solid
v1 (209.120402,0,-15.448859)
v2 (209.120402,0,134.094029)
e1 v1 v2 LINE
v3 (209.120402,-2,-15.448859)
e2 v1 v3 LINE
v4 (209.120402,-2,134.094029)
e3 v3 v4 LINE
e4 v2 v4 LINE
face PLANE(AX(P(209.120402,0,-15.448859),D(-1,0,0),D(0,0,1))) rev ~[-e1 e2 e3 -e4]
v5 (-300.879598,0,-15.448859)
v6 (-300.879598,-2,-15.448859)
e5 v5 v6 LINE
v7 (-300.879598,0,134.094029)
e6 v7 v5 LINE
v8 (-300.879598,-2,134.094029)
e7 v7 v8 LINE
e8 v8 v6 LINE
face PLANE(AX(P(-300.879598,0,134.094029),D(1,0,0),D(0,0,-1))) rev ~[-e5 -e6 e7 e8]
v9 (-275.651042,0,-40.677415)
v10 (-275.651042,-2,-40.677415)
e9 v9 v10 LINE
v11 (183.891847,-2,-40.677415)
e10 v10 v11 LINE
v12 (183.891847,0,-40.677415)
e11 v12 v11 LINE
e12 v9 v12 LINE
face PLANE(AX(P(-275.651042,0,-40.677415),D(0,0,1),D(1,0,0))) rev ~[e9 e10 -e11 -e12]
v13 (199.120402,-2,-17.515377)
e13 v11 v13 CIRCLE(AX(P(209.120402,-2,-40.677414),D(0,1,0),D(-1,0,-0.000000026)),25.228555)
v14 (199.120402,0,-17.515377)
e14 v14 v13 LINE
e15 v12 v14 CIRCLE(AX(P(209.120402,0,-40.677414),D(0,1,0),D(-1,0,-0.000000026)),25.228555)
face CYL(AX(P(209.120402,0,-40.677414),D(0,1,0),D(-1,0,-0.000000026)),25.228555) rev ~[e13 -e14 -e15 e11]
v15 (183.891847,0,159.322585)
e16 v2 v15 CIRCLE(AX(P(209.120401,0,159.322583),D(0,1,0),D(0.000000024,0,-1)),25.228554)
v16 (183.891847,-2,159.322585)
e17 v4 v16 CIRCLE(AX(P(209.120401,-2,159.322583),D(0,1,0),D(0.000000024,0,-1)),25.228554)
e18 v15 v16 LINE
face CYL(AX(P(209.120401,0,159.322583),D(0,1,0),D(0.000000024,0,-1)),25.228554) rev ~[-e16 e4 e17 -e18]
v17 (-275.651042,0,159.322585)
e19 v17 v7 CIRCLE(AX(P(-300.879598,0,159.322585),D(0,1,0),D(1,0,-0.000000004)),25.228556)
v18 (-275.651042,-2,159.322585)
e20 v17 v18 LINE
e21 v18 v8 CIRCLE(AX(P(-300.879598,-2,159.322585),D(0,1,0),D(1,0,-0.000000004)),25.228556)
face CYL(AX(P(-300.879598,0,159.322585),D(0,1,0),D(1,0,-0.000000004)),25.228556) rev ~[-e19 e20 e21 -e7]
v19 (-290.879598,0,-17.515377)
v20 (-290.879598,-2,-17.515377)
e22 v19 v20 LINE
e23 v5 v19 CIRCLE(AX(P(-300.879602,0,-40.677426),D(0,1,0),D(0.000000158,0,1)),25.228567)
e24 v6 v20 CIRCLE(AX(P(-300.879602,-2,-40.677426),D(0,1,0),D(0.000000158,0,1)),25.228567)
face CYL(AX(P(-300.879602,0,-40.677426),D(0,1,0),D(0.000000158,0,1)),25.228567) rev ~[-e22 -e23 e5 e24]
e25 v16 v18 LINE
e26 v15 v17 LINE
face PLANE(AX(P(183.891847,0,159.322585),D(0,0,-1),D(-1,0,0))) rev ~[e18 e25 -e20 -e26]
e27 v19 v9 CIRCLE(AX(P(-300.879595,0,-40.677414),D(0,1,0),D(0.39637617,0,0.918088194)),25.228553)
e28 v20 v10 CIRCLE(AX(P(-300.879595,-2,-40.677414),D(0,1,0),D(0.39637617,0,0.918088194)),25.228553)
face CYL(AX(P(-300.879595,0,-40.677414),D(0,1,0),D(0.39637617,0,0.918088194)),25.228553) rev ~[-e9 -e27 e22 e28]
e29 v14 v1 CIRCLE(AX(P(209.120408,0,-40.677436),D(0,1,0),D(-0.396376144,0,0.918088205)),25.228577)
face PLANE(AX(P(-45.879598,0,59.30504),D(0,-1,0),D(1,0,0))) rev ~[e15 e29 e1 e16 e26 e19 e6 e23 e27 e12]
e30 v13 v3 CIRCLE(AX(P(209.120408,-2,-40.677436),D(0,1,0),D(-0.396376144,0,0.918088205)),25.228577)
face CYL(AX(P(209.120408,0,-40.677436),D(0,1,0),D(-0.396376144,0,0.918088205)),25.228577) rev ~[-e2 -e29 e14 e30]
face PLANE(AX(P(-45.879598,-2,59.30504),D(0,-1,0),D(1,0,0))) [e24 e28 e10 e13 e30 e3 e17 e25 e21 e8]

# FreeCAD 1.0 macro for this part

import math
import FreeCAD as App
import Part
import Sketcher
Q = App.Units.Quantity

doc = App.newDocument("Part")
body = doc.addObject("PartDesign::Body", "Body")

# Sketch on XZ plane
sketch1 = body.newObject("Sketcher::SketchObject", "Sketch")
sketch1.AttachmentSupport = (doc.getObject("XZ_Plane"), [""])
sketch1.MapMode = "FlatFace"
sketch1.addGeometry(Part.LineSegment(App.Vector(-301, 134, 0), App.Vector(-301, -15, 0)), False)
sketch1.addGeometry(Part.ArcOfCircle(Part.Circle(App.Vector(-301, -41, 0), App.Vector(0, 0, 1), 25), math.radians(67), math.radians(90)), False)
sketch1.addGeometry(Part.ArcOfCircle(Part.Circle(App.Vector(-301, -41, 0), App.Vector(0, 0, 1), 25), math.radians(0), math.radians(67)), False)
sketch1.addGeometry(Part.LineSegment(App.Vector(-276, -41, 0), App.Vector(184, -41, 0)), False)
sketch1.addGeometry(Part.ArcOfCircle(Part.Circle(App.Vector(209, -41, 0), App.Vector(0, 0, 1), 25), math.radians(113), math.radians(180)), False)
sketch1.addGeometry(Part.ArcOfCircle(Part.Circle(App.Vector(209, -41, 0), App.Vector(0, 0, 1), 25), math.radians(90), math.radians(113)), False)
sketch1.addGeometry(Part.LineSegment(App.Vector(209, -15, 0), App.Vector(209, 134, 0)), False)
sketch1.addGeometry(Part.ArcOfCircle(Part.Circle(App.Vector(209, 159, 0), App.Vector(0, 0, 1), 25), math.radians(180), math.radians(270)), False)
sketch1.addGeometry(Part.LineSegment(App.Vector(184, 159, 0), App.Vector(-276, 159, 0)), False)
sketch1.addGeometry(Part.ArcOfCircle(Part.Circle(App.Vector(-301, 159, 0), App.Vector(0, 0, 1), 25), math.radians(-90), math.radians(0)), False)
sketch1.addConstraint(Sketcher.Constraint("Coincident", 0, 2, 1, 2))
sketch1.addConstraint(Sketcher.Constraint("Tangent", 1, 1, 2, 2))
sketch1.addConstraint(Sketcher.Constraint("Coincident", 2, 1, 3, 1))
sketch1.addConstraint(Sketcher.Constraint("Coincident", 3, 2, 4, 2))
sketch1.addConstraint(Sketcher.Constraint("Tangent", 4, 1, 5, 2))
sketch1.addConstraint(Sketcher.Constraint("Coincident", 5, 1, 6, 1))
sketch1.addConstraint(Sketcher.Constraint("Coincident", 6, 2, 7, 2))
sketch1.addConstraint(Sketcher.Constraint("Coincident", 7, 1, 8, 1))
sketch1.addConstraint(Sketcher.Constraint("Coincident", 8, 2, 9, 2))
sketch1.addConstraint(Sketcher.Constraint("Coincident", 9, 1, 0, 1))
sketch1.addConstraint(Sketcher.Constraint("Vertical", 0))
sketch1.addConstraint(Sketcher.Constraint("Horizontal", 3))
sketch1.addConstraint(Sketcher.Constraint("Vertical", 6))
sketch1.addConstraint(Sketcher.Constraint("Horizontal", 8))
sketch1.addConstraint(Sketcher.Constraint("Equal", 2, 4))
sketch1.addConstraint(Sketcher.Constraint("Equal", 4, 7))
sketch1.addConstraint(Sketcher.Constraint("Equal", 7, 9))
sketch1.addConstraint(Sketcher.Constraint("Horizontal", 2, 3, 4, 3))
sketch1.addConstraint(Sketcher.Constraint("Horizontal", 7, 3, 9, 3))
sketch1.addConstraint(Sketcher.Constraint("Horizontal", 4, 3, 2, 1))
sketch1.addConstraint(Sketcher.Constraint("Horizontal", 1, 1, 4, 1))
sketch1.addConstraint(Sketcher.Constraint("Horizontal", 0, 2, 5, 1))
sketch1.addConstraint(Sketcher.Constraint("Horizontal", 9, 3, 7, 1))
sketch1.addConstraint(Sketcher.Constraint("Vertical", 4, 3, 7, 3))
sketch1.addConstraint(Sketcher.Constraint("Vertical", 9, 3, 0, 2))
sketch1.addConstraint(Sketcher.Constraint("Vertical", 7, 3, 5, 1))
sketch1.addConstraint(Sketcher.Constraint("Vertical", 2, 1, 8, 2))
sketch1.addConstraint(Sketcher.Constraint("DistanceY", 2, 3, 9, 3, Q("199.999999 mm")))
sketch1.addConstraint(Sketcher.Constraint("DistanceX", 9, 3, 7, 3, Q("509.999999 mm")))
sketch1.addConstraint(Sketcher.Constraint("DistanceX", 0, 2, 1, 1, Q("10 mm")))
sketch1.addConstraint(Sketcher.Constraint("Radius", 1, Q("25.228567 mm")))
sketch1.addConstraint(Sketcher.Constraint("Radius", 2, Q("25.228553 mm")))
sketch1.addConstraint(Sketcher.Constraint("DistanceX", 1, 3, -1, 1, Q("300.879602 mm")))
sketch1.addConstraint(Sketcher.Constraint("DistanceY", 0, 2, -1, 1, Q("15.448859 mm")))
pad1 = body.newObject("PartDesign::Pad", "Pad")
pad1.Profile = sketch1
pad1.Length = 2

doc.recompute()
